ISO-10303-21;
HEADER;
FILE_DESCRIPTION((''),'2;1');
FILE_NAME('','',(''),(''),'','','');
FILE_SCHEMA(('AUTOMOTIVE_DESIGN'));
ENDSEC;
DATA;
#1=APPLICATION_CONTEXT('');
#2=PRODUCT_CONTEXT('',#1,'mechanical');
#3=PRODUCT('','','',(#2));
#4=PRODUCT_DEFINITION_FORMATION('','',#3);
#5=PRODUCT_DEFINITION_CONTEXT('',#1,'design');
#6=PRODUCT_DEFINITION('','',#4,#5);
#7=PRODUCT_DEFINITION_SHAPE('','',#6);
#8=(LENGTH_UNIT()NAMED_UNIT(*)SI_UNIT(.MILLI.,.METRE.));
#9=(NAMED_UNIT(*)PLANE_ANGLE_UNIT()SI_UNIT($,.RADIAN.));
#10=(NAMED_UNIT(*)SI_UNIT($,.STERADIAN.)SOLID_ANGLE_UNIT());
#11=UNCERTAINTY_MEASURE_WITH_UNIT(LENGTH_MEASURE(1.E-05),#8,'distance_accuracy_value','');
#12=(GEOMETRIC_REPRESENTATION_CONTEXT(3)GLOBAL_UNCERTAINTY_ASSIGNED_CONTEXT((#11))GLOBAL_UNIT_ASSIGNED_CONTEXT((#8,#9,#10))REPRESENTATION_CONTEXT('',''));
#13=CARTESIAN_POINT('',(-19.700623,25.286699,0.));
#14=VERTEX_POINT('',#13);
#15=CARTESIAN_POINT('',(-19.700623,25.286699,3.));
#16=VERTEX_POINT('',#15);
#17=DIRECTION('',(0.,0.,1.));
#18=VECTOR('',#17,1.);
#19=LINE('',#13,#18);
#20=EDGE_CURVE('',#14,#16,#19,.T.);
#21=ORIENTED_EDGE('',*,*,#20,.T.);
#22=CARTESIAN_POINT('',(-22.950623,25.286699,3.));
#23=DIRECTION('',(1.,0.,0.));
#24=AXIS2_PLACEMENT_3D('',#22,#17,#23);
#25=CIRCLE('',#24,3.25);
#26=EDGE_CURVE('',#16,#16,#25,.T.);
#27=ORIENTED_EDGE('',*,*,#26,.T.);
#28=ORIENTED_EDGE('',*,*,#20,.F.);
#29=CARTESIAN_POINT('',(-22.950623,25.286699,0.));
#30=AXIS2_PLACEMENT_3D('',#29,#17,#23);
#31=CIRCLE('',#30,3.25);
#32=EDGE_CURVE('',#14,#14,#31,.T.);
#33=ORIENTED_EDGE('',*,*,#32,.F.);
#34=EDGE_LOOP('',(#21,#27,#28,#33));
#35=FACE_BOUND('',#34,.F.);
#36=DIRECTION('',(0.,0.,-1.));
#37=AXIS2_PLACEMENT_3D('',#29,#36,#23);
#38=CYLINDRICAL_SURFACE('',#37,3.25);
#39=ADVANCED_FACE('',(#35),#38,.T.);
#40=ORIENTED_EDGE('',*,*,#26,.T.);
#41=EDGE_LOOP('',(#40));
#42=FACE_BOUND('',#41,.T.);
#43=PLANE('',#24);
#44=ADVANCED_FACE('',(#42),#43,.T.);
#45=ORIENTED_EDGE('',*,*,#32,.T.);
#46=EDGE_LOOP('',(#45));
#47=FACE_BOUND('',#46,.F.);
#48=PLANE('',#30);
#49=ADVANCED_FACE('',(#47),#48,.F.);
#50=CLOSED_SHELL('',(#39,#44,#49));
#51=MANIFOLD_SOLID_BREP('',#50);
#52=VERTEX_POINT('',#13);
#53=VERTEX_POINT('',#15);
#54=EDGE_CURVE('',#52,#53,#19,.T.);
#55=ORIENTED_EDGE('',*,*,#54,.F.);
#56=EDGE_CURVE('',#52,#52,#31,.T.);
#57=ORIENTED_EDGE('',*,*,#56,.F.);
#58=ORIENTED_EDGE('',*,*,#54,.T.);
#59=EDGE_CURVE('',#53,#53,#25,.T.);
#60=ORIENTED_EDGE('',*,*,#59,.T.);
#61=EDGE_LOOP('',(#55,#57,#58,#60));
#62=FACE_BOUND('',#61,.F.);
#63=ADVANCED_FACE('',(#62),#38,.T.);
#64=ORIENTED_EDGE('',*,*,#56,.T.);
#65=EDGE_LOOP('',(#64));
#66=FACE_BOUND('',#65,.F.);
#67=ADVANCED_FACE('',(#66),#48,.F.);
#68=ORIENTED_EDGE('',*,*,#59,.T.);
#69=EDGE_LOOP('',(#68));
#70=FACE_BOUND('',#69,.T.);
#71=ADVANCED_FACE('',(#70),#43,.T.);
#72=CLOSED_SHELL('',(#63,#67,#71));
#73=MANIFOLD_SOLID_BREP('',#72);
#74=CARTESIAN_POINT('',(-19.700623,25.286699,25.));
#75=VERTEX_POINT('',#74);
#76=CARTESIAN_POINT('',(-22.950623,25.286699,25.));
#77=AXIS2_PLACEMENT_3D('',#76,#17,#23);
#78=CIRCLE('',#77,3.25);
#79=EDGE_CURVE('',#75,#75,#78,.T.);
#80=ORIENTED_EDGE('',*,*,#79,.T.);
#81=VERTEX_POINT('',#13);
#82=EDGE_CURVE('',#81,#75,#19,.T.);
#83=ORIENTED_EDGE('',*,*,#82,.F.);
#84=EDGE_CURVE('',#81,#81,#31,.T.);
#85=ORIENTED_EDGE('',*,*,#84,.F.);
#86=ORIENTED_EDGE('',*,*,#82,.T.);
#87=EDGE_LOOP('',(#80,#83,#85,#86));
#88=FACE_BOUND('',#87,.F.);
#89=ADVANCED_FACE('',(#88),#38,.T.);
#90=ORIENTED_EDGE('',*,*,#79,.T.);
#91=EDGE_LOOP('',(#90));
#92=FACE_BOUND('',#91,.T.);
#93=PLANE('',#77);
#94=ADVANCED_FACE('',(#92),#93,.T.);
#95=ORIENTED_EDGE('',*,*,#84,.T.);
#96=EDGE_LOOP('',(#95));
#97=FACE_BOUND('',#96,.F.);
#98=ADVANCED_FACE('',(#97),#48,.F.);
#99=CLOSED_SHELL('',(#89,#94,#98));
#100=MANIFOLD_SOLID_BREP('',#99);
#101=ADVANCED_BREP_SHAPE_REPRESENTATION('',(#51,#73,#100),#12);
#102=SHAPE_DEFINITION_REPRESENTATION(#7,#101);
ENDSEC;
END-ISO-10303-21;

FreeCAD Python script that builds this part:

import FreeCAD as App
import Part
import Sketcher

V = App.Vector
Q = App.Units.Quantity

doc = App.newDocument("Part")
params = doc.addObject("Spreadsheet::Sheet", "Params")
for row, (alias, value) in enumerate([
    ("sketch1_diameter", "6.5 mm"),
    ("pad1_length", "25 mm"),
    ("sketch2_diameter", "6.5 mm"),
    ("pad2_length", "3 mm"),
    ("sketch3_diameter", "6.5 mm"),
    ("pad3_length", "3 mm"),
], start=1):
    params.set(f"A{row}", alias)
    params.set(f"B{row}", "=" + value)
    params.setAlias(f"B{row}", alias)

body = doc.addObject("PartDesign::Body", "Body")

sketch1 = body.newObject("Sketcher::SketchObject", "Sketch")
sketch1.AttachmentSupport = (doc.getObject("XY_Plane"), [""])
sketch1.MapMode = "FlatFace"
sketch1.addGeometry(Part.Circle(V(-23, 25.3, 0), V(0, 0, 1), 3.2), False)
sketch1.addConstraint([
    Sketcher.Constraint("Diameter", 0, Q("6.5 mm")),
    Sketcher.Constraint("DistanceY", -1, 1, 0, 3, Q("25.286699 mm")),
    Sketcher.Constraint("DistanceX", 0, 3, -1, 1, Q("22.950623 mm")),
])
sketch1.setExpression("Constraints[0]", "Params.sketch1_diameter")
pad1 = body.newObject("PartDesign::Pad", "Pad")
pad1.Profile = sketch1
pad1.setExpression("Length", "Params.pad1_length")
body2 = doc.addObject("PartDesign::Body", "Body001")

sketch2 = body2.newObject("Sketcher::SketchObject", "Sketch001")
sketch2.AttachmentSupport = (doc.getObject("XY_Plane001"), [""])
sketch2.MapMode = "FlatFace"
sketch2.addGeometry(Part.Circle(V(-23, 25.3, 0), V(0, 0, 1), 3.2), False)
sketch2.addConstraint([
    Sketcher.Constraint("Diameter", 0, Q("6.5 mm")),
    Sketcher.Constraint("DistanceY", -1, 1, 0, 3, Q("25.286699 mm")),
    Sketcher.Constraint("DistanceX", 0, 3, -1, 1, Q("22.950623 mm")),
])
sketch2.setExpression("Constraints[0]", "Params.sketch2_diameter")
pad2 = body2.newObject("PartDesign::Pad", "Pad001")
pad2.Profile = sketch2
pad2.setExpression("Length", "Params.pad2_length")
body3 = doc.addObject("PartDesign::Body", "Body002")

sketch3 = body3.newObject("Sketcher::SketchObject", "Sketch002")
sketch3.AttachmentSupport = (doc.getObject("XY_Plane002"), [""])
sketch3.MapMode = "FlatFace"
sketch3.addGeometry(Part.Circle(V(-23, 25.3, 0), V(0, 0, 1), 3.2), False)
sketch3.addConstraint([
    Sketcher.Constraint("Diameter", 0, Q("6.5 mm")),
    Sketcher.Constraint("DistanceY", -1, 1, 0, 3, Q("25.286699 mm")),
    Sketcher.Constraint("DistanceX", 0, 3, -1, 1, Q("22.950623 mm")),
])
sketch3.setExpression("Constraints[0]", "Params.sketch3_diameter")
pad3 = body3.newObject("PartDesign::Pad", "Pad002")
pad3.Profile = sketch3
pad3.setExpression("Length", "Params.pad3_length")

doc.recompute()
